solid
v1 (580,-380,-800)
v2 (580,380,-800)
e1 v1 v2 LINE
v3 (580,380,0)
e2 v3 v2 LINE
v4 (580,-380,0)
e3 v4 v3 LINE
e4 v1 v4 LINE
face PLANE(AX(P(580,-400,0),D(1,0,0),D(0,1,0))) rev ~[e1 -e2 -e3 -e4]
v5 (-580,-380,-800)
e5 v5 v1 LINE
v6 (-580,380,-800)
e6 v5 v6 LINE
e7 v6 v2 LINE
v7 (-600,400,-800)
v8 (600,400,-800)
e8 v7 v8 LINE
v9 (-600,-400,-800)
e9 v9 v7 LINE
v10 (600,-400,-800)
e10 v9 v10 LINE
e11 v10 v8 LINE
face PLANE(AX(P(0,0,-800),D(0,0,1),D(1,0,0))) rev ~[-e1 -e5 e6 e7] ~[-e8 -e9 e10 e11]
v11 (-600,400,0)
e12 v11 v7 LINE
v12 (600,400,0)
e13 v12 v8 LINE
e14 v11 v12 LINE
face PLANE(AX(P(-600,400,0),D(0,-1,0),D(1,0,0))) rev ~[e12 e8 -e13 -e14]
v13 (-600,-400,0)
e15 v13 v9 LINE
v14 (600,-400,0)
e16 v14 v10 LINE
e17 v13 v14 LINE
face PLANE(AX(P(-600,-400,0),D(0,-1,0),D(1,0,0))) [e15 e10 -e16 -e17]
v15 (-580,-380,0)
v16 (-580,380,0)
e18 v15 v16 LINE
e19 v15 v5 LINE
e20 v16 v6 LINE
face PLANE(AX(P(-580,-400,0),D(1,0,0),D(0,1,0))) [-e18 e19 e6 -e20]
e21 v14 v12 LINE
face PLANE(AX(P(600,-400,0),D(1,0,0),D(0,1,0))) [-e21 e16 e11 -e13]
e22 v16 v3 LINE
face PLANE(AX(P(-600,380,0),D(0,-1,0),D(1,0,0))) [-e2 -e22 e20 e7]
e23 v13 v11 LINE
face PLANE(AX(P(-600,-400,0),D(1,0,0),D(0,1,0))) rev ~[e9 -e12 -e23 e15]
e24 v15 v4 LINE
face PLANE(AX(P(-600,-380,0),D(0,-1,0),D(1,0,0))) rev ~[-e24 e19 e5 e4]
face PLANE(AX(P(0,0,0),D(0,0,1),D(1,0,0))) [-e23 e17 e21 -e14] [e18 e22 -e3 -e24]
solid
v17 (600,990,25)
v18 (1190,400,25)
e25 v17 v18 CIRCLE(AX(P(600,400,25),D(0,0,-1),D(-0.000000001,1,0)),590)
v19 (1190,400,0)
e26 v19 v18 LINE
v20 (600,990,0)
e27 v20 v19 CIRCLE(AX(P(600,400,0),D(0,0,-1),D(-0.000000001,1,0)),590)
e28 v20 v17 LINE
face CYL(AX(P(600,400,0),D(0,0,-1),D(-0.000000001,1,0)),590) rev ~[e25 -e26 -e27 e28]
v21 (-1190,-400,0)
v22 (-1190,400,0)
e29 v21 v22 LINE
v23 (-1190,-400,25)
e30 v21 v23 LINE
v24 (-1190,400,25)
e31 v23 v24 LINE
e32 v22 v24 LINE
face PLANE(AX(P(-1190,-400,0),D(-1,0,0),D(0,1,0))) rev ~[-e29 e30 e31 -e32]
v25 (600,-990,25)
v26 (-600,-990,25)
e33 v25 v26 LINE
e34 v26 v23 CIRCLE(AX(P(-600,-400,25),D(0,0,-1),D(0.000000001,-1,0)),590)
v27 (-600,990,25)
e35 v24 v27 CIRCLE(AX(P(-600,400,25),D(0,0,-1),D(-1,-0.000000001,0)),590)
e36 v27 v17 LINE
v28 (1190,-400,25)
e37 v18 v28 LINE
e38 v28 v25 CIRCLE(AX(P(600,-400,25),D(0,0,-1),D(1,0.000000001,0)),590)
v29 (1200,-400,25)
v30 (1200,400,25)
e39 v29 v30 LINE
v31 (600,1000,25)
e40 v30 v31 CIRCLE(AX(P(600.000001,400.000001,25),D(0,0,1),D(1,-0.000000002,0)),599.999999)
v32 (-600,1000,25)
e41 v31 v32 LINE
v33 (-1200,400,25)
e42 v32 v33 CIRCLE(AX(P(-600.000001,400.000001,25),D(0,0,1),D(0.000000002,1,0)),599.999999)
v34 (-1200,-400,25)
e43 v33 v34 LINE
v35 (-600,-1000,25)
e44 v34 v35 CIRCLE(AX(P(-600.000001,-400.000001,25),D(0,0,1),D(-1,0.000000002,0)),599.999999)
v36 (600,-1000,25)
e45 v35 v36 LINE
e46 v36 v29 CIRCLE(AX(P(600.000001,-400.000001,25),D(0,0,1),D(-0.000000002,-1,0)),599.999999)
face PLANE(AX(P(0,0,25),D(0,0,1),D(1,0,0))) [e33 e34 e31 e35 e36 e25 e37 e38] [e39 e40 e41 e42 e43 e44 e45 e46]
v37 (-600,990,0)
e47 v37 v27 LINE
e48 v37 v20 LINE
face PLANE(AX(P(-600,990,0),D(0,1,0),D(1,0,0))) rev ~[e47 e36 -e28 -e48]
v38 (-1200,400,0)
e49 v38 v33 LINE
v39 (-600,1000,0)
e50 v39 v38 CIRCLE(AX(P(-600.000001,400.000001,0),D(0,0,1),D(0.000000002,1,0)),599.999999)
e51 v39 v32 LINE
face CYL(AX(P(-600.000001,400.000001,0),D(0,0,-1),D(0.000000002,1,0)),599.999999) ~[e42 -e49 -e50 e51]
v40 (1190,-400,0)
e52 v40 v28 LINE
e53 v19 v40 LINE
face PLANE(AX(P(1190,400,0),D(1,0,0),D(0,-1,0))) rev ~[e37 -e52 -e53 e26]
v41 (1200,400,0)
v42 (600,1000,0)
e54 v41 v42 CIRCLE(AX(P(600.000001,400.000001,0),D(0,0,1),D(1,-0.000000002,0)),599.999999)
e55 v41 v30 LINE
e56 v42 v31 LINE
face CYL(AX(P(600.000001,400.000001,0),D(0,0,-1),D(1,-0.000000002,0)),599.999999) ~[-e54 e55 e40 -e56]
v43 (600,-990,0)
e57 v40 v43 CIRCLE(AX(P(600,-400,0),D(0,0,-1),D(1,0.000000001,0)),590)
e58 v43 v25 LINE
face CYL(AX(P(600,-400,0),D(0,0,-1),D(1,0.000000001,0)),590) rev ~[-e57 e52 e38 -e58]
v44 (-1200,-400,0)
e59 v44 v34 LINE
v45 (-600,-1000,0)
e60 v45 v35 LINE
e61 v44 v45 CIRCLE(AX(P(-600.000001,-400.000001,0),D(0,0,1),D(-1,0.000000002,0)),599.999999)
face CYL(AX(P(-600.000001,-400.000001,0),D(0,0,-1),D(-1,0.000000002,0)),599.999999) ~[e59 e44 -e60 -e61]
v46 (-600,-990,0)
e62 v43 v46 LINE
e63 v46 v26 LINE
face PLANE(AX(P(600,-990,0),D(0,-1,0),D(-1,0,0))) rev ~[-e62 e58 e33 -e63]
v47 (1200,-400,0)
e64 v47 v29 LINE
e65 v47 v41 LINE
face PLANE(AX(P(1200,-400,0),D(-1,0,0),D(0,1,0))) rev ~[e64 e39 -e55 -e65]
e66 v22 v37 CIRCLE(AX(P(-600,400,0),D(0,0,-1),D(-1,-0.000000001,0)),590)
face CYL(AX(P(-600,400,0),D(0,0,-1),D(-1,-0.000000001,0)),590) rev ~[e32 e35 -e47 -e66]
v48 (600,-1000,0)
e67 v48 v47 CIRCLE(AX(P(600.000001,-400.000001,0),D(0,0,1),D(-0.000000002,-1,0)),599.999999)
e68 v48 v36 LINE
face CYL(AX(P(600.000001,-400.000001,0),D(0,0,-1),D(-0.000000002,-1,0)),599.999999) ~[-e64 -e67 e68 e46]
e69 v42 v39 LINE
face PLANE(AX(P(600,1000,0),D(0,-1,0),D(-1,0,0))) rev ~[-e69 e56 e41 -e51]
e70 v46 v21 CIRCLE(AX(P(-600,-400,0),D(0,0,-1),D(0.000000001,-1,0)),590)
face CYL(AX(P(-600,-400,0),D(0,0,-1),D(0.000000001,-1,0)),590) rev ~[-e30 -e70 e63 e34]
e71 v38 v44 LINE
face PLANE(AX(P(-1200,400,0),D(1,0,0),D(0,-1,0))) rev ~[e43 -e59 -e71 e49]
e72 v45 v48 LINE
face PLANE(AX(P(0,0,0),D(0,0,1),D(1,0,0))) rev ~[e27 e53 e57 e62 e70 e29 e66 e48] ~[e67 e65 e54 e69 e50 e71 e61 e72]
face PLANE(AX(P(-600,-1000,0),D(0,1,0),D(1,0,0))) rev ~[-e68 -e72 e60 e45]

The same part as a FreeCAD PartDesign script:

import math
import FreeCAD as App
import Part
import Sketcher

V = App.Vector


def faces_at(feature, points):
    """Names of the faces that lie closest to the given points."""
    faces = feature.Shape.Faces
    near = lambda p: min(range(len(faces)), key=lambda i: faces[i].distToShape(Part.Vertex(*p))[0])
    return sorted({f"Face{near(p) + 1}" for p in points})

doc = App.newDocument("Part")
params = doc.addObject("Spreadsheet::Sheet", "Params")
for row, (alias, value) in enumerate([
    ("sketch1_width", "1200 mm"),
    ("sketch1_height", "800 mm"),
    ("pad1_length", "800 mm"),
    ("thickness_wall", "20 mm"),
    ("sketch2_radius", "599.999999 mm"),
    ("sketch2_radius2", "590 mm"),
    ("sketch2_width", "1200 mm"),
    ("sketch2_height", "800 mm"),
    ("pad2_length", "25 mm"),
], start=1):
    params.set(f"A{row}", alias)
    params.set(f"B{row}", "=" + value)
    params.setAlias(f"B{row}", alias)

body = doc.addObject("PartDesign::Body", "Body")

# Sketch on XY plane
sketch1 = body.newObject("Sketcher::SketchObject", "Sketch")
sketch1.AttachmentSupport = (doc.getObject("XY_Plane"), [""])
sketch1.MapMode = "FlatFace"
sketch1.addGeometry([
    Part.LineSegment(V(-600, 400, 0), V(-600, -400, 0)),
    Part.LineSegment(V(-600, -400, 0), V(600, -400, 0)),
    Part.LineSegment(V(600, -400, 0), V(600, 400, 0)),
    Part.LineSegment(V(600, 400, 0), V(-600, 400, 0)),
], False)
sketch1.addConstraint([
    Sketcher.Constraint("Coincident", 0, 2, 1, 1),
    Sketcher.Constraint("Coincident", 1, 2, 2, 1),
    Sketcher.Constraint("Coincident", 2, 2, 3, 1),
    Sketcher.Constraint("Coincident", 3, 2, 0, 1),
    Sketcher.Constraint("Vertical", 0),
    Sketcher.Constraint("Horizontal", 1),
    Sketcher.Constraint("Vertical", 2),
    Sketcher.Constraint("Horizontal", 3),
    Sketcher.Constraint("Symmetric", 0, 2, 2, 2, -1, 1),
    Sketcher.Constraint("DistanceX", 1, 1, 1, 2, 1200.0),
    Sketcher.Constraint("DistanceY", 0, 2, 0, 1, 800.0),
])
sketch1.setExpression("Constraints[9]", "Params.sketch1_width")
sketch1.setExpression("Constraints[10]", "Params.sketch1_height")
pad1 = body.newObject("PartDesign::Pad", "Pad")
pad1.Profile = sketch1
pad1.setExpression("Length", "Params.pad1_length")
pad1.Reversed = True
doc.recompute()

thickness = body.newObject("PartDesign::Thickness", "Thickness")
thickness.Base = (pad1, faces_at(pad1, [(0, 0, 0), (0, 0, -800)]))
thickness.setExpression("Value", "Params.thickness_wall")
thickness.Reversed = True
thickness.Join = "Arc"
body2 = doc.addObject("PartDesign::Body", "Body001")

# Sketch on XY plane
sketch2 = body2.newObject("Sketcher::SketchObject", "Sketch001")
sketch2.AttachmentSupport = (doc.getObject("XY_Plane001"), [""])
sketch2.MapMode = "FlatFace"
sketch2.addGeometry([
    Part.LineSegment(V(600, 1000, 0), V(-600, 1000, 0)),  # 0
    Part.ArcOfCircle(Part.Circle(V(-600.000001, 400.000001, 0), V(0, 0, 1), 599.999999), math.radians(90), math.radians(180)),  # 1
    Part.LineSegment(V(-1200, 400, 0), V(-1200, -400, 0)),  # 2
    Part.ArcOfCircle(Part.Circle(V(-600.000001, -400.000001, 0), V(0, 0, 1), 599.999999), math.radians(180), math.radians(270)),  # 3
    Part.LineSegment(V(-600, -1000, 0), V(600, -1000, 0)),  # 4
    Part.ArcOfCircle(Part.Circle(V(600.000001, -400.000001, 0), V(0, 0, 1), 599.999999), math.radians(-90), math.radians(0)),  # 5
    Part.LineSegment(V(1200, -400, 0), V(1200, 400, 0)),  # 6
    Part.ArcOfCircle(Part.Circle(V(600.000001, 400.000001, 0), V(0, 0, 1), 599.999999), math.radians(0), math.radians(90)),  # 7
    Part.LineSegment(V(600, -990, 0), V(-600, -990, 0)),  # 8
    Part.ArcOfCircle(Part.Circle(V(-600, -400, 0), V(0, 0, 1), 590), math.radians(180), math.radians(270)),  # 9
    Part.LineSegment(V(-1190, -400, 0), V(-1190, 400, 0)),  # 10
    Part.ArcOfCircle(Part.Circle(V(-600, 400, 0), V(0, 0, 1), 590), math.radians(90), math.radians(180)),  # 11
    Part.LineSegment(V(-600, 990, 0), V(600, 990, 0)),  # 12
    Part.ArcOfCircle(Part.Circle(V(600, 400, 0), V(0, 0, 1), 590), math.radians(0), math.radians(90)),  # 13
    Part.LineSegment(V(1190, 400, 0), V(1190, -400, 0)),  # 14
    Part.ArcOfCircle(Part.Circle(V(600, -400, 0), V(0, 0, 1), 590), math.radians(-90), math.radians(0)),  # 15
], False)
sketch2.addConstraint([
    Sketcher.Constraint("Tangent", 0, 2, 1, 1),
    Sketcher.Constraint("Tangent", 1, 2, 2, 1),
    Sketcher.Constraint("Tangent", 2, 2, 3, 1),
    Sketcher.Constraint("Tangent", 3, 2, 4, 1),
    Sketcher.Constraint("Tangent", 4, 2, 5, 1),
    Sketcher.Constraint("Tangent", 5, 2, 6, 1),
    Sketcher.Constraint("Tangent", 6, 2, 7, 1),
    Sketcher.Constraint("Tangent", 7, 2, 0, 1),
    Sketcher.Constraint("Tangent", 8, 2, 9, 2),
    Sketcher.Constraint("Tangent", 9, 1, 10, 1),
    Sketcher.Constraint("Tangent", 10, 2, 11, 2),
    Sketcher.Constraint("Tangent", 11, 1, 12, 1),
    Sketcher.Constraint("Tangent", 12, 2, 13, 2),
    Sketcher.Constraint("Tangent", 13, 1, 14, 1),
    Sketcher.Constraint("Tangent", 14, 2, 15, 2),
    Sketcher.Constraint("Tangent", 15, 1, 8, 1),
    Sketcher.Constraint("Horizontal", 0),
    Sketcher.Constraint("Vertical", 2),
    Sketcher.Constraint("Horizontal", 4),
    Sketcher.Constraint("Vertical", 6),
    Sketcher.Constraint("Horizontal", 8),
    Sketcher.Constraint("Vertical", 10),
    Sketcher.Constraint("Horizontal", 12),
    Sketcher.Constraint("Vertical", 14),
    Sketcher.Constraint("Coincident", 9, 3, 3, 3),
    Sketcher.Constraint("Coincident", 11, 3, 1, 3),
    Sketcher.Constraint("Coincident", 13, 3, 7, 3),
    Sketcher.Constraint("Equal", 1, 3),
    Sketcher.Constraint("Equal", 3, 5),
    Sketcher.Constraint("Equal", 5, 7),
    Sketcher.Constraint("Equal", 13, 15),
    Sketcher.Constraint("Symmetric", 1, 3, 5, 3, -1, 1),
    Sketcher.Constraint("Radius", 1, 599.999999),
    Sketcher.Constraint("Radius", 9, 590.0),
    Sketcher.Constraint("DistanceX", 0, 2, 0, 1, 1200.0),
    Sketcher.Constraint("DistanceY", 2, 2, 2, 1, 800.0),
])
sketch2.setExpression("Constraints[32]", "Params.sketch2_radius")
sketch2.setExpression("Constraints[33]", "Params.sketch2_radius2")
sketch2.setExpression("Constraints[34]", "Params.sketch2_width")
sketch2.setExpression("Constraints[35]", "Params.sketch2_height")
pad2 = body2.newObject("PartDesign::Pad", "Pad001")
pad2.Profile = sketch2
pad2.setExpression("Length", "Params.pad2_length")

doc.recompute()
